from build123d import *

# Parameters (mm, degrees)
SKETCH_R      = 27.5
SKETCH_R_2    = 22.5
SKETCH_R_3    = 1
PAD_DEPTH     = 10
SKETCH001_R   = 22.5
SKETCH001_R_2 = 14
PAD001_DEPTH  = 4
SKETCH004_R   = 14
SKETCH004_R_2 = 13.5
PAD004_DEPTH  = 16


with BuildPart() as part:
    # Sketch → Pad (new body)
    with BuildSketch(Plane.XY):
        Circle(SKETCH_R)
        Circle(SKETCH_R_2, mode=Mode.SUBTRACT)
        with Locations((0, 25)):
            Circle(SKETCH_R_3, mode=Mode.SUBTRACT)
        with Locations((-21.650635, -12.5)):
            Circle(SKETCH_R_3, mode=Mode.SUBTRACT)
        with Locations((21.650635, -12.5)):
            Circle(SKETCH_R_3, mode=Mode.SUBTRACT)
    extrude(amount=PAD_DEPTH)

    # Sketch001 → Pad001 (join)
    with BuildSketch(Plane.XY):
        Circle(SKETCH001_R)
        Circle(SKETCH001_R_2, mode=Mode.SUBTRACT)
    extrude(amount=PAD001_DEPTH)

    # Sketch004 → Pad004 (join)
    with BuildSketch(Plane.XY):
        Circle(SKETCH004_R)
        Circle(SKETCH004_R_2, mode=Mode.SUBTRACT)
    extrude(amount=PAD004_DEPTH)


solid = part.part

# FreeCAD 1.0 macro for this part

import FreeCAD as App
import Part
import Sketcher
Q = App.Units.Quantity

doc = App.newDocument("Part")
body = doc.addObject("PartDesign::Body", "Body")

# Sketch on XY plane
sketch1 = body.newObject("Sketcher::SketchObject", "Sketch")
sketch1.AttachmentSupport = (doc.getObject("XY_Plane"), [""])
sketch1.MapMode = "FlatFace"
sketch1.addGeometry([
    Part.Circle(App.Vector(0, 0, 0), App.Vector(0, 0, 1), 27.5),  # 0
    Part.Circle(App.Vector(-21.650635, -12.5, 0), App.Vector(0, 0, 1), 1),  # 1
    Part.Circle(App.Vector(21.650635, -12.5, 0), App.Vector(0, 0, 1), 1),  # 2
    Part.Circle(App.Vector(0, 0, 0), App.Vector(0, 0, 1), 22.5),  # 3
    Part.Circle(App.Vector(0, 25, 0), App.Vector(0, 0, 1), 1),  # 4
], False)
sketch1.addConstraint([
    Sketcher.Constraint("Coincident", 0, 3, -1, 1),
    Sketcher.Constraint("Coincident", 3, 3, -1, 1),
    Sketcher.Constraint("Equal", 1, 2),
    Sketcher.Constraint("Equal", 2, 4),
    Sketcher.Constraint("Symmetric", 1, 3, 2, 3, -2),
    Sketcher.Constraint("PointOnObject", 4, 3, -2),
    Sketcher.Constraint("Diameter", 0, Q("55 mm")),
    Sketcher.Constraint("Diameter", 1, Q("2 mm")),
    Sketcher.Constraint("Diameter", 3, Q("45 mm")),
    Sketcher.Constraint("DistanceY", -1, 1, 4, 3, Q("25 mm")),
    Sketcher.Constraint("DistanceY", 1, 3, -1, 1, Q("12.5 mm")),
    Sketcher.Constraint("DistanceX", 1, 3, 2, 3, Q("43.30127 mm")),
])
pad1 = body.newObject("PartDesign::Pad", "Pad")
pad1.Profile = sketch1
pad1.Length = 10

# Sketch on XY plane
sketch2 = body.newObject("Sketcher::SketchObject", "Sketch001")
sketch2.AttachmentSupport = (doc.getObject("XY_Plane"), [""])
sketch2.MapMode = "FlatFace"
sketch2.addGeometry([
    Part.Circle(App.Vector(0, 0, 0), App.Vector(0, 0, 1), 22.5),
    Part.Circle(App.Vector(0, 0, 0), App.Vector(0, 0, 1), 14),
], False)
sketch2.addConstraint([
    Sketcher.Constraint("Coincident", 0, 3, -1, 1),
    Sketcher.Constraint("Coincident", 1, 3, -1, 1),
    Sketcher.Constraint("Diameter", 0, Q("45 mm")),
    Sketcher.Constraint("Diameter", 1, Q("28 mm")),
])
pad2 = body.newObject("PartDesign::Pad", "Pad001")
pad2.Profile = sketch2
pad2.Length = 4

# Sketch on XY plane
sketch3 = body.newObject("Sketcher::SketchObject", "Sketch002")
sketch3.AttachmentSupport = (doc.getObject("XY_Plane"), [""])
sketch3.MapMode = "FlatFace"
sketch3.addGeometry([
    Part.Circle(App.Vector(0, 0, 0), App.Vector(0, 0, 1), 14),
    Part.Circle(App.Vector(0, 0, 0), App.Vector(0, 0, 1), 13.5),
], False)
sketch3.addConstraint([
    Sketcher.Constraint("Coincident", 0, 3, -1, 1),
    Sketcher.Constraint("Coincident", 1, 3, -1, 1),
    Sketcher.Constraint("Diameter", 0, Q("28 mm")),
    Sketcher.Constraint("Diameter", 1, Q("27 mm")),
])
pad3 = body.newObject("PartDesign::Pad", "Pad002")
pad3.Profile = sketch3
pad3.Length = 16

doc.recompute()
